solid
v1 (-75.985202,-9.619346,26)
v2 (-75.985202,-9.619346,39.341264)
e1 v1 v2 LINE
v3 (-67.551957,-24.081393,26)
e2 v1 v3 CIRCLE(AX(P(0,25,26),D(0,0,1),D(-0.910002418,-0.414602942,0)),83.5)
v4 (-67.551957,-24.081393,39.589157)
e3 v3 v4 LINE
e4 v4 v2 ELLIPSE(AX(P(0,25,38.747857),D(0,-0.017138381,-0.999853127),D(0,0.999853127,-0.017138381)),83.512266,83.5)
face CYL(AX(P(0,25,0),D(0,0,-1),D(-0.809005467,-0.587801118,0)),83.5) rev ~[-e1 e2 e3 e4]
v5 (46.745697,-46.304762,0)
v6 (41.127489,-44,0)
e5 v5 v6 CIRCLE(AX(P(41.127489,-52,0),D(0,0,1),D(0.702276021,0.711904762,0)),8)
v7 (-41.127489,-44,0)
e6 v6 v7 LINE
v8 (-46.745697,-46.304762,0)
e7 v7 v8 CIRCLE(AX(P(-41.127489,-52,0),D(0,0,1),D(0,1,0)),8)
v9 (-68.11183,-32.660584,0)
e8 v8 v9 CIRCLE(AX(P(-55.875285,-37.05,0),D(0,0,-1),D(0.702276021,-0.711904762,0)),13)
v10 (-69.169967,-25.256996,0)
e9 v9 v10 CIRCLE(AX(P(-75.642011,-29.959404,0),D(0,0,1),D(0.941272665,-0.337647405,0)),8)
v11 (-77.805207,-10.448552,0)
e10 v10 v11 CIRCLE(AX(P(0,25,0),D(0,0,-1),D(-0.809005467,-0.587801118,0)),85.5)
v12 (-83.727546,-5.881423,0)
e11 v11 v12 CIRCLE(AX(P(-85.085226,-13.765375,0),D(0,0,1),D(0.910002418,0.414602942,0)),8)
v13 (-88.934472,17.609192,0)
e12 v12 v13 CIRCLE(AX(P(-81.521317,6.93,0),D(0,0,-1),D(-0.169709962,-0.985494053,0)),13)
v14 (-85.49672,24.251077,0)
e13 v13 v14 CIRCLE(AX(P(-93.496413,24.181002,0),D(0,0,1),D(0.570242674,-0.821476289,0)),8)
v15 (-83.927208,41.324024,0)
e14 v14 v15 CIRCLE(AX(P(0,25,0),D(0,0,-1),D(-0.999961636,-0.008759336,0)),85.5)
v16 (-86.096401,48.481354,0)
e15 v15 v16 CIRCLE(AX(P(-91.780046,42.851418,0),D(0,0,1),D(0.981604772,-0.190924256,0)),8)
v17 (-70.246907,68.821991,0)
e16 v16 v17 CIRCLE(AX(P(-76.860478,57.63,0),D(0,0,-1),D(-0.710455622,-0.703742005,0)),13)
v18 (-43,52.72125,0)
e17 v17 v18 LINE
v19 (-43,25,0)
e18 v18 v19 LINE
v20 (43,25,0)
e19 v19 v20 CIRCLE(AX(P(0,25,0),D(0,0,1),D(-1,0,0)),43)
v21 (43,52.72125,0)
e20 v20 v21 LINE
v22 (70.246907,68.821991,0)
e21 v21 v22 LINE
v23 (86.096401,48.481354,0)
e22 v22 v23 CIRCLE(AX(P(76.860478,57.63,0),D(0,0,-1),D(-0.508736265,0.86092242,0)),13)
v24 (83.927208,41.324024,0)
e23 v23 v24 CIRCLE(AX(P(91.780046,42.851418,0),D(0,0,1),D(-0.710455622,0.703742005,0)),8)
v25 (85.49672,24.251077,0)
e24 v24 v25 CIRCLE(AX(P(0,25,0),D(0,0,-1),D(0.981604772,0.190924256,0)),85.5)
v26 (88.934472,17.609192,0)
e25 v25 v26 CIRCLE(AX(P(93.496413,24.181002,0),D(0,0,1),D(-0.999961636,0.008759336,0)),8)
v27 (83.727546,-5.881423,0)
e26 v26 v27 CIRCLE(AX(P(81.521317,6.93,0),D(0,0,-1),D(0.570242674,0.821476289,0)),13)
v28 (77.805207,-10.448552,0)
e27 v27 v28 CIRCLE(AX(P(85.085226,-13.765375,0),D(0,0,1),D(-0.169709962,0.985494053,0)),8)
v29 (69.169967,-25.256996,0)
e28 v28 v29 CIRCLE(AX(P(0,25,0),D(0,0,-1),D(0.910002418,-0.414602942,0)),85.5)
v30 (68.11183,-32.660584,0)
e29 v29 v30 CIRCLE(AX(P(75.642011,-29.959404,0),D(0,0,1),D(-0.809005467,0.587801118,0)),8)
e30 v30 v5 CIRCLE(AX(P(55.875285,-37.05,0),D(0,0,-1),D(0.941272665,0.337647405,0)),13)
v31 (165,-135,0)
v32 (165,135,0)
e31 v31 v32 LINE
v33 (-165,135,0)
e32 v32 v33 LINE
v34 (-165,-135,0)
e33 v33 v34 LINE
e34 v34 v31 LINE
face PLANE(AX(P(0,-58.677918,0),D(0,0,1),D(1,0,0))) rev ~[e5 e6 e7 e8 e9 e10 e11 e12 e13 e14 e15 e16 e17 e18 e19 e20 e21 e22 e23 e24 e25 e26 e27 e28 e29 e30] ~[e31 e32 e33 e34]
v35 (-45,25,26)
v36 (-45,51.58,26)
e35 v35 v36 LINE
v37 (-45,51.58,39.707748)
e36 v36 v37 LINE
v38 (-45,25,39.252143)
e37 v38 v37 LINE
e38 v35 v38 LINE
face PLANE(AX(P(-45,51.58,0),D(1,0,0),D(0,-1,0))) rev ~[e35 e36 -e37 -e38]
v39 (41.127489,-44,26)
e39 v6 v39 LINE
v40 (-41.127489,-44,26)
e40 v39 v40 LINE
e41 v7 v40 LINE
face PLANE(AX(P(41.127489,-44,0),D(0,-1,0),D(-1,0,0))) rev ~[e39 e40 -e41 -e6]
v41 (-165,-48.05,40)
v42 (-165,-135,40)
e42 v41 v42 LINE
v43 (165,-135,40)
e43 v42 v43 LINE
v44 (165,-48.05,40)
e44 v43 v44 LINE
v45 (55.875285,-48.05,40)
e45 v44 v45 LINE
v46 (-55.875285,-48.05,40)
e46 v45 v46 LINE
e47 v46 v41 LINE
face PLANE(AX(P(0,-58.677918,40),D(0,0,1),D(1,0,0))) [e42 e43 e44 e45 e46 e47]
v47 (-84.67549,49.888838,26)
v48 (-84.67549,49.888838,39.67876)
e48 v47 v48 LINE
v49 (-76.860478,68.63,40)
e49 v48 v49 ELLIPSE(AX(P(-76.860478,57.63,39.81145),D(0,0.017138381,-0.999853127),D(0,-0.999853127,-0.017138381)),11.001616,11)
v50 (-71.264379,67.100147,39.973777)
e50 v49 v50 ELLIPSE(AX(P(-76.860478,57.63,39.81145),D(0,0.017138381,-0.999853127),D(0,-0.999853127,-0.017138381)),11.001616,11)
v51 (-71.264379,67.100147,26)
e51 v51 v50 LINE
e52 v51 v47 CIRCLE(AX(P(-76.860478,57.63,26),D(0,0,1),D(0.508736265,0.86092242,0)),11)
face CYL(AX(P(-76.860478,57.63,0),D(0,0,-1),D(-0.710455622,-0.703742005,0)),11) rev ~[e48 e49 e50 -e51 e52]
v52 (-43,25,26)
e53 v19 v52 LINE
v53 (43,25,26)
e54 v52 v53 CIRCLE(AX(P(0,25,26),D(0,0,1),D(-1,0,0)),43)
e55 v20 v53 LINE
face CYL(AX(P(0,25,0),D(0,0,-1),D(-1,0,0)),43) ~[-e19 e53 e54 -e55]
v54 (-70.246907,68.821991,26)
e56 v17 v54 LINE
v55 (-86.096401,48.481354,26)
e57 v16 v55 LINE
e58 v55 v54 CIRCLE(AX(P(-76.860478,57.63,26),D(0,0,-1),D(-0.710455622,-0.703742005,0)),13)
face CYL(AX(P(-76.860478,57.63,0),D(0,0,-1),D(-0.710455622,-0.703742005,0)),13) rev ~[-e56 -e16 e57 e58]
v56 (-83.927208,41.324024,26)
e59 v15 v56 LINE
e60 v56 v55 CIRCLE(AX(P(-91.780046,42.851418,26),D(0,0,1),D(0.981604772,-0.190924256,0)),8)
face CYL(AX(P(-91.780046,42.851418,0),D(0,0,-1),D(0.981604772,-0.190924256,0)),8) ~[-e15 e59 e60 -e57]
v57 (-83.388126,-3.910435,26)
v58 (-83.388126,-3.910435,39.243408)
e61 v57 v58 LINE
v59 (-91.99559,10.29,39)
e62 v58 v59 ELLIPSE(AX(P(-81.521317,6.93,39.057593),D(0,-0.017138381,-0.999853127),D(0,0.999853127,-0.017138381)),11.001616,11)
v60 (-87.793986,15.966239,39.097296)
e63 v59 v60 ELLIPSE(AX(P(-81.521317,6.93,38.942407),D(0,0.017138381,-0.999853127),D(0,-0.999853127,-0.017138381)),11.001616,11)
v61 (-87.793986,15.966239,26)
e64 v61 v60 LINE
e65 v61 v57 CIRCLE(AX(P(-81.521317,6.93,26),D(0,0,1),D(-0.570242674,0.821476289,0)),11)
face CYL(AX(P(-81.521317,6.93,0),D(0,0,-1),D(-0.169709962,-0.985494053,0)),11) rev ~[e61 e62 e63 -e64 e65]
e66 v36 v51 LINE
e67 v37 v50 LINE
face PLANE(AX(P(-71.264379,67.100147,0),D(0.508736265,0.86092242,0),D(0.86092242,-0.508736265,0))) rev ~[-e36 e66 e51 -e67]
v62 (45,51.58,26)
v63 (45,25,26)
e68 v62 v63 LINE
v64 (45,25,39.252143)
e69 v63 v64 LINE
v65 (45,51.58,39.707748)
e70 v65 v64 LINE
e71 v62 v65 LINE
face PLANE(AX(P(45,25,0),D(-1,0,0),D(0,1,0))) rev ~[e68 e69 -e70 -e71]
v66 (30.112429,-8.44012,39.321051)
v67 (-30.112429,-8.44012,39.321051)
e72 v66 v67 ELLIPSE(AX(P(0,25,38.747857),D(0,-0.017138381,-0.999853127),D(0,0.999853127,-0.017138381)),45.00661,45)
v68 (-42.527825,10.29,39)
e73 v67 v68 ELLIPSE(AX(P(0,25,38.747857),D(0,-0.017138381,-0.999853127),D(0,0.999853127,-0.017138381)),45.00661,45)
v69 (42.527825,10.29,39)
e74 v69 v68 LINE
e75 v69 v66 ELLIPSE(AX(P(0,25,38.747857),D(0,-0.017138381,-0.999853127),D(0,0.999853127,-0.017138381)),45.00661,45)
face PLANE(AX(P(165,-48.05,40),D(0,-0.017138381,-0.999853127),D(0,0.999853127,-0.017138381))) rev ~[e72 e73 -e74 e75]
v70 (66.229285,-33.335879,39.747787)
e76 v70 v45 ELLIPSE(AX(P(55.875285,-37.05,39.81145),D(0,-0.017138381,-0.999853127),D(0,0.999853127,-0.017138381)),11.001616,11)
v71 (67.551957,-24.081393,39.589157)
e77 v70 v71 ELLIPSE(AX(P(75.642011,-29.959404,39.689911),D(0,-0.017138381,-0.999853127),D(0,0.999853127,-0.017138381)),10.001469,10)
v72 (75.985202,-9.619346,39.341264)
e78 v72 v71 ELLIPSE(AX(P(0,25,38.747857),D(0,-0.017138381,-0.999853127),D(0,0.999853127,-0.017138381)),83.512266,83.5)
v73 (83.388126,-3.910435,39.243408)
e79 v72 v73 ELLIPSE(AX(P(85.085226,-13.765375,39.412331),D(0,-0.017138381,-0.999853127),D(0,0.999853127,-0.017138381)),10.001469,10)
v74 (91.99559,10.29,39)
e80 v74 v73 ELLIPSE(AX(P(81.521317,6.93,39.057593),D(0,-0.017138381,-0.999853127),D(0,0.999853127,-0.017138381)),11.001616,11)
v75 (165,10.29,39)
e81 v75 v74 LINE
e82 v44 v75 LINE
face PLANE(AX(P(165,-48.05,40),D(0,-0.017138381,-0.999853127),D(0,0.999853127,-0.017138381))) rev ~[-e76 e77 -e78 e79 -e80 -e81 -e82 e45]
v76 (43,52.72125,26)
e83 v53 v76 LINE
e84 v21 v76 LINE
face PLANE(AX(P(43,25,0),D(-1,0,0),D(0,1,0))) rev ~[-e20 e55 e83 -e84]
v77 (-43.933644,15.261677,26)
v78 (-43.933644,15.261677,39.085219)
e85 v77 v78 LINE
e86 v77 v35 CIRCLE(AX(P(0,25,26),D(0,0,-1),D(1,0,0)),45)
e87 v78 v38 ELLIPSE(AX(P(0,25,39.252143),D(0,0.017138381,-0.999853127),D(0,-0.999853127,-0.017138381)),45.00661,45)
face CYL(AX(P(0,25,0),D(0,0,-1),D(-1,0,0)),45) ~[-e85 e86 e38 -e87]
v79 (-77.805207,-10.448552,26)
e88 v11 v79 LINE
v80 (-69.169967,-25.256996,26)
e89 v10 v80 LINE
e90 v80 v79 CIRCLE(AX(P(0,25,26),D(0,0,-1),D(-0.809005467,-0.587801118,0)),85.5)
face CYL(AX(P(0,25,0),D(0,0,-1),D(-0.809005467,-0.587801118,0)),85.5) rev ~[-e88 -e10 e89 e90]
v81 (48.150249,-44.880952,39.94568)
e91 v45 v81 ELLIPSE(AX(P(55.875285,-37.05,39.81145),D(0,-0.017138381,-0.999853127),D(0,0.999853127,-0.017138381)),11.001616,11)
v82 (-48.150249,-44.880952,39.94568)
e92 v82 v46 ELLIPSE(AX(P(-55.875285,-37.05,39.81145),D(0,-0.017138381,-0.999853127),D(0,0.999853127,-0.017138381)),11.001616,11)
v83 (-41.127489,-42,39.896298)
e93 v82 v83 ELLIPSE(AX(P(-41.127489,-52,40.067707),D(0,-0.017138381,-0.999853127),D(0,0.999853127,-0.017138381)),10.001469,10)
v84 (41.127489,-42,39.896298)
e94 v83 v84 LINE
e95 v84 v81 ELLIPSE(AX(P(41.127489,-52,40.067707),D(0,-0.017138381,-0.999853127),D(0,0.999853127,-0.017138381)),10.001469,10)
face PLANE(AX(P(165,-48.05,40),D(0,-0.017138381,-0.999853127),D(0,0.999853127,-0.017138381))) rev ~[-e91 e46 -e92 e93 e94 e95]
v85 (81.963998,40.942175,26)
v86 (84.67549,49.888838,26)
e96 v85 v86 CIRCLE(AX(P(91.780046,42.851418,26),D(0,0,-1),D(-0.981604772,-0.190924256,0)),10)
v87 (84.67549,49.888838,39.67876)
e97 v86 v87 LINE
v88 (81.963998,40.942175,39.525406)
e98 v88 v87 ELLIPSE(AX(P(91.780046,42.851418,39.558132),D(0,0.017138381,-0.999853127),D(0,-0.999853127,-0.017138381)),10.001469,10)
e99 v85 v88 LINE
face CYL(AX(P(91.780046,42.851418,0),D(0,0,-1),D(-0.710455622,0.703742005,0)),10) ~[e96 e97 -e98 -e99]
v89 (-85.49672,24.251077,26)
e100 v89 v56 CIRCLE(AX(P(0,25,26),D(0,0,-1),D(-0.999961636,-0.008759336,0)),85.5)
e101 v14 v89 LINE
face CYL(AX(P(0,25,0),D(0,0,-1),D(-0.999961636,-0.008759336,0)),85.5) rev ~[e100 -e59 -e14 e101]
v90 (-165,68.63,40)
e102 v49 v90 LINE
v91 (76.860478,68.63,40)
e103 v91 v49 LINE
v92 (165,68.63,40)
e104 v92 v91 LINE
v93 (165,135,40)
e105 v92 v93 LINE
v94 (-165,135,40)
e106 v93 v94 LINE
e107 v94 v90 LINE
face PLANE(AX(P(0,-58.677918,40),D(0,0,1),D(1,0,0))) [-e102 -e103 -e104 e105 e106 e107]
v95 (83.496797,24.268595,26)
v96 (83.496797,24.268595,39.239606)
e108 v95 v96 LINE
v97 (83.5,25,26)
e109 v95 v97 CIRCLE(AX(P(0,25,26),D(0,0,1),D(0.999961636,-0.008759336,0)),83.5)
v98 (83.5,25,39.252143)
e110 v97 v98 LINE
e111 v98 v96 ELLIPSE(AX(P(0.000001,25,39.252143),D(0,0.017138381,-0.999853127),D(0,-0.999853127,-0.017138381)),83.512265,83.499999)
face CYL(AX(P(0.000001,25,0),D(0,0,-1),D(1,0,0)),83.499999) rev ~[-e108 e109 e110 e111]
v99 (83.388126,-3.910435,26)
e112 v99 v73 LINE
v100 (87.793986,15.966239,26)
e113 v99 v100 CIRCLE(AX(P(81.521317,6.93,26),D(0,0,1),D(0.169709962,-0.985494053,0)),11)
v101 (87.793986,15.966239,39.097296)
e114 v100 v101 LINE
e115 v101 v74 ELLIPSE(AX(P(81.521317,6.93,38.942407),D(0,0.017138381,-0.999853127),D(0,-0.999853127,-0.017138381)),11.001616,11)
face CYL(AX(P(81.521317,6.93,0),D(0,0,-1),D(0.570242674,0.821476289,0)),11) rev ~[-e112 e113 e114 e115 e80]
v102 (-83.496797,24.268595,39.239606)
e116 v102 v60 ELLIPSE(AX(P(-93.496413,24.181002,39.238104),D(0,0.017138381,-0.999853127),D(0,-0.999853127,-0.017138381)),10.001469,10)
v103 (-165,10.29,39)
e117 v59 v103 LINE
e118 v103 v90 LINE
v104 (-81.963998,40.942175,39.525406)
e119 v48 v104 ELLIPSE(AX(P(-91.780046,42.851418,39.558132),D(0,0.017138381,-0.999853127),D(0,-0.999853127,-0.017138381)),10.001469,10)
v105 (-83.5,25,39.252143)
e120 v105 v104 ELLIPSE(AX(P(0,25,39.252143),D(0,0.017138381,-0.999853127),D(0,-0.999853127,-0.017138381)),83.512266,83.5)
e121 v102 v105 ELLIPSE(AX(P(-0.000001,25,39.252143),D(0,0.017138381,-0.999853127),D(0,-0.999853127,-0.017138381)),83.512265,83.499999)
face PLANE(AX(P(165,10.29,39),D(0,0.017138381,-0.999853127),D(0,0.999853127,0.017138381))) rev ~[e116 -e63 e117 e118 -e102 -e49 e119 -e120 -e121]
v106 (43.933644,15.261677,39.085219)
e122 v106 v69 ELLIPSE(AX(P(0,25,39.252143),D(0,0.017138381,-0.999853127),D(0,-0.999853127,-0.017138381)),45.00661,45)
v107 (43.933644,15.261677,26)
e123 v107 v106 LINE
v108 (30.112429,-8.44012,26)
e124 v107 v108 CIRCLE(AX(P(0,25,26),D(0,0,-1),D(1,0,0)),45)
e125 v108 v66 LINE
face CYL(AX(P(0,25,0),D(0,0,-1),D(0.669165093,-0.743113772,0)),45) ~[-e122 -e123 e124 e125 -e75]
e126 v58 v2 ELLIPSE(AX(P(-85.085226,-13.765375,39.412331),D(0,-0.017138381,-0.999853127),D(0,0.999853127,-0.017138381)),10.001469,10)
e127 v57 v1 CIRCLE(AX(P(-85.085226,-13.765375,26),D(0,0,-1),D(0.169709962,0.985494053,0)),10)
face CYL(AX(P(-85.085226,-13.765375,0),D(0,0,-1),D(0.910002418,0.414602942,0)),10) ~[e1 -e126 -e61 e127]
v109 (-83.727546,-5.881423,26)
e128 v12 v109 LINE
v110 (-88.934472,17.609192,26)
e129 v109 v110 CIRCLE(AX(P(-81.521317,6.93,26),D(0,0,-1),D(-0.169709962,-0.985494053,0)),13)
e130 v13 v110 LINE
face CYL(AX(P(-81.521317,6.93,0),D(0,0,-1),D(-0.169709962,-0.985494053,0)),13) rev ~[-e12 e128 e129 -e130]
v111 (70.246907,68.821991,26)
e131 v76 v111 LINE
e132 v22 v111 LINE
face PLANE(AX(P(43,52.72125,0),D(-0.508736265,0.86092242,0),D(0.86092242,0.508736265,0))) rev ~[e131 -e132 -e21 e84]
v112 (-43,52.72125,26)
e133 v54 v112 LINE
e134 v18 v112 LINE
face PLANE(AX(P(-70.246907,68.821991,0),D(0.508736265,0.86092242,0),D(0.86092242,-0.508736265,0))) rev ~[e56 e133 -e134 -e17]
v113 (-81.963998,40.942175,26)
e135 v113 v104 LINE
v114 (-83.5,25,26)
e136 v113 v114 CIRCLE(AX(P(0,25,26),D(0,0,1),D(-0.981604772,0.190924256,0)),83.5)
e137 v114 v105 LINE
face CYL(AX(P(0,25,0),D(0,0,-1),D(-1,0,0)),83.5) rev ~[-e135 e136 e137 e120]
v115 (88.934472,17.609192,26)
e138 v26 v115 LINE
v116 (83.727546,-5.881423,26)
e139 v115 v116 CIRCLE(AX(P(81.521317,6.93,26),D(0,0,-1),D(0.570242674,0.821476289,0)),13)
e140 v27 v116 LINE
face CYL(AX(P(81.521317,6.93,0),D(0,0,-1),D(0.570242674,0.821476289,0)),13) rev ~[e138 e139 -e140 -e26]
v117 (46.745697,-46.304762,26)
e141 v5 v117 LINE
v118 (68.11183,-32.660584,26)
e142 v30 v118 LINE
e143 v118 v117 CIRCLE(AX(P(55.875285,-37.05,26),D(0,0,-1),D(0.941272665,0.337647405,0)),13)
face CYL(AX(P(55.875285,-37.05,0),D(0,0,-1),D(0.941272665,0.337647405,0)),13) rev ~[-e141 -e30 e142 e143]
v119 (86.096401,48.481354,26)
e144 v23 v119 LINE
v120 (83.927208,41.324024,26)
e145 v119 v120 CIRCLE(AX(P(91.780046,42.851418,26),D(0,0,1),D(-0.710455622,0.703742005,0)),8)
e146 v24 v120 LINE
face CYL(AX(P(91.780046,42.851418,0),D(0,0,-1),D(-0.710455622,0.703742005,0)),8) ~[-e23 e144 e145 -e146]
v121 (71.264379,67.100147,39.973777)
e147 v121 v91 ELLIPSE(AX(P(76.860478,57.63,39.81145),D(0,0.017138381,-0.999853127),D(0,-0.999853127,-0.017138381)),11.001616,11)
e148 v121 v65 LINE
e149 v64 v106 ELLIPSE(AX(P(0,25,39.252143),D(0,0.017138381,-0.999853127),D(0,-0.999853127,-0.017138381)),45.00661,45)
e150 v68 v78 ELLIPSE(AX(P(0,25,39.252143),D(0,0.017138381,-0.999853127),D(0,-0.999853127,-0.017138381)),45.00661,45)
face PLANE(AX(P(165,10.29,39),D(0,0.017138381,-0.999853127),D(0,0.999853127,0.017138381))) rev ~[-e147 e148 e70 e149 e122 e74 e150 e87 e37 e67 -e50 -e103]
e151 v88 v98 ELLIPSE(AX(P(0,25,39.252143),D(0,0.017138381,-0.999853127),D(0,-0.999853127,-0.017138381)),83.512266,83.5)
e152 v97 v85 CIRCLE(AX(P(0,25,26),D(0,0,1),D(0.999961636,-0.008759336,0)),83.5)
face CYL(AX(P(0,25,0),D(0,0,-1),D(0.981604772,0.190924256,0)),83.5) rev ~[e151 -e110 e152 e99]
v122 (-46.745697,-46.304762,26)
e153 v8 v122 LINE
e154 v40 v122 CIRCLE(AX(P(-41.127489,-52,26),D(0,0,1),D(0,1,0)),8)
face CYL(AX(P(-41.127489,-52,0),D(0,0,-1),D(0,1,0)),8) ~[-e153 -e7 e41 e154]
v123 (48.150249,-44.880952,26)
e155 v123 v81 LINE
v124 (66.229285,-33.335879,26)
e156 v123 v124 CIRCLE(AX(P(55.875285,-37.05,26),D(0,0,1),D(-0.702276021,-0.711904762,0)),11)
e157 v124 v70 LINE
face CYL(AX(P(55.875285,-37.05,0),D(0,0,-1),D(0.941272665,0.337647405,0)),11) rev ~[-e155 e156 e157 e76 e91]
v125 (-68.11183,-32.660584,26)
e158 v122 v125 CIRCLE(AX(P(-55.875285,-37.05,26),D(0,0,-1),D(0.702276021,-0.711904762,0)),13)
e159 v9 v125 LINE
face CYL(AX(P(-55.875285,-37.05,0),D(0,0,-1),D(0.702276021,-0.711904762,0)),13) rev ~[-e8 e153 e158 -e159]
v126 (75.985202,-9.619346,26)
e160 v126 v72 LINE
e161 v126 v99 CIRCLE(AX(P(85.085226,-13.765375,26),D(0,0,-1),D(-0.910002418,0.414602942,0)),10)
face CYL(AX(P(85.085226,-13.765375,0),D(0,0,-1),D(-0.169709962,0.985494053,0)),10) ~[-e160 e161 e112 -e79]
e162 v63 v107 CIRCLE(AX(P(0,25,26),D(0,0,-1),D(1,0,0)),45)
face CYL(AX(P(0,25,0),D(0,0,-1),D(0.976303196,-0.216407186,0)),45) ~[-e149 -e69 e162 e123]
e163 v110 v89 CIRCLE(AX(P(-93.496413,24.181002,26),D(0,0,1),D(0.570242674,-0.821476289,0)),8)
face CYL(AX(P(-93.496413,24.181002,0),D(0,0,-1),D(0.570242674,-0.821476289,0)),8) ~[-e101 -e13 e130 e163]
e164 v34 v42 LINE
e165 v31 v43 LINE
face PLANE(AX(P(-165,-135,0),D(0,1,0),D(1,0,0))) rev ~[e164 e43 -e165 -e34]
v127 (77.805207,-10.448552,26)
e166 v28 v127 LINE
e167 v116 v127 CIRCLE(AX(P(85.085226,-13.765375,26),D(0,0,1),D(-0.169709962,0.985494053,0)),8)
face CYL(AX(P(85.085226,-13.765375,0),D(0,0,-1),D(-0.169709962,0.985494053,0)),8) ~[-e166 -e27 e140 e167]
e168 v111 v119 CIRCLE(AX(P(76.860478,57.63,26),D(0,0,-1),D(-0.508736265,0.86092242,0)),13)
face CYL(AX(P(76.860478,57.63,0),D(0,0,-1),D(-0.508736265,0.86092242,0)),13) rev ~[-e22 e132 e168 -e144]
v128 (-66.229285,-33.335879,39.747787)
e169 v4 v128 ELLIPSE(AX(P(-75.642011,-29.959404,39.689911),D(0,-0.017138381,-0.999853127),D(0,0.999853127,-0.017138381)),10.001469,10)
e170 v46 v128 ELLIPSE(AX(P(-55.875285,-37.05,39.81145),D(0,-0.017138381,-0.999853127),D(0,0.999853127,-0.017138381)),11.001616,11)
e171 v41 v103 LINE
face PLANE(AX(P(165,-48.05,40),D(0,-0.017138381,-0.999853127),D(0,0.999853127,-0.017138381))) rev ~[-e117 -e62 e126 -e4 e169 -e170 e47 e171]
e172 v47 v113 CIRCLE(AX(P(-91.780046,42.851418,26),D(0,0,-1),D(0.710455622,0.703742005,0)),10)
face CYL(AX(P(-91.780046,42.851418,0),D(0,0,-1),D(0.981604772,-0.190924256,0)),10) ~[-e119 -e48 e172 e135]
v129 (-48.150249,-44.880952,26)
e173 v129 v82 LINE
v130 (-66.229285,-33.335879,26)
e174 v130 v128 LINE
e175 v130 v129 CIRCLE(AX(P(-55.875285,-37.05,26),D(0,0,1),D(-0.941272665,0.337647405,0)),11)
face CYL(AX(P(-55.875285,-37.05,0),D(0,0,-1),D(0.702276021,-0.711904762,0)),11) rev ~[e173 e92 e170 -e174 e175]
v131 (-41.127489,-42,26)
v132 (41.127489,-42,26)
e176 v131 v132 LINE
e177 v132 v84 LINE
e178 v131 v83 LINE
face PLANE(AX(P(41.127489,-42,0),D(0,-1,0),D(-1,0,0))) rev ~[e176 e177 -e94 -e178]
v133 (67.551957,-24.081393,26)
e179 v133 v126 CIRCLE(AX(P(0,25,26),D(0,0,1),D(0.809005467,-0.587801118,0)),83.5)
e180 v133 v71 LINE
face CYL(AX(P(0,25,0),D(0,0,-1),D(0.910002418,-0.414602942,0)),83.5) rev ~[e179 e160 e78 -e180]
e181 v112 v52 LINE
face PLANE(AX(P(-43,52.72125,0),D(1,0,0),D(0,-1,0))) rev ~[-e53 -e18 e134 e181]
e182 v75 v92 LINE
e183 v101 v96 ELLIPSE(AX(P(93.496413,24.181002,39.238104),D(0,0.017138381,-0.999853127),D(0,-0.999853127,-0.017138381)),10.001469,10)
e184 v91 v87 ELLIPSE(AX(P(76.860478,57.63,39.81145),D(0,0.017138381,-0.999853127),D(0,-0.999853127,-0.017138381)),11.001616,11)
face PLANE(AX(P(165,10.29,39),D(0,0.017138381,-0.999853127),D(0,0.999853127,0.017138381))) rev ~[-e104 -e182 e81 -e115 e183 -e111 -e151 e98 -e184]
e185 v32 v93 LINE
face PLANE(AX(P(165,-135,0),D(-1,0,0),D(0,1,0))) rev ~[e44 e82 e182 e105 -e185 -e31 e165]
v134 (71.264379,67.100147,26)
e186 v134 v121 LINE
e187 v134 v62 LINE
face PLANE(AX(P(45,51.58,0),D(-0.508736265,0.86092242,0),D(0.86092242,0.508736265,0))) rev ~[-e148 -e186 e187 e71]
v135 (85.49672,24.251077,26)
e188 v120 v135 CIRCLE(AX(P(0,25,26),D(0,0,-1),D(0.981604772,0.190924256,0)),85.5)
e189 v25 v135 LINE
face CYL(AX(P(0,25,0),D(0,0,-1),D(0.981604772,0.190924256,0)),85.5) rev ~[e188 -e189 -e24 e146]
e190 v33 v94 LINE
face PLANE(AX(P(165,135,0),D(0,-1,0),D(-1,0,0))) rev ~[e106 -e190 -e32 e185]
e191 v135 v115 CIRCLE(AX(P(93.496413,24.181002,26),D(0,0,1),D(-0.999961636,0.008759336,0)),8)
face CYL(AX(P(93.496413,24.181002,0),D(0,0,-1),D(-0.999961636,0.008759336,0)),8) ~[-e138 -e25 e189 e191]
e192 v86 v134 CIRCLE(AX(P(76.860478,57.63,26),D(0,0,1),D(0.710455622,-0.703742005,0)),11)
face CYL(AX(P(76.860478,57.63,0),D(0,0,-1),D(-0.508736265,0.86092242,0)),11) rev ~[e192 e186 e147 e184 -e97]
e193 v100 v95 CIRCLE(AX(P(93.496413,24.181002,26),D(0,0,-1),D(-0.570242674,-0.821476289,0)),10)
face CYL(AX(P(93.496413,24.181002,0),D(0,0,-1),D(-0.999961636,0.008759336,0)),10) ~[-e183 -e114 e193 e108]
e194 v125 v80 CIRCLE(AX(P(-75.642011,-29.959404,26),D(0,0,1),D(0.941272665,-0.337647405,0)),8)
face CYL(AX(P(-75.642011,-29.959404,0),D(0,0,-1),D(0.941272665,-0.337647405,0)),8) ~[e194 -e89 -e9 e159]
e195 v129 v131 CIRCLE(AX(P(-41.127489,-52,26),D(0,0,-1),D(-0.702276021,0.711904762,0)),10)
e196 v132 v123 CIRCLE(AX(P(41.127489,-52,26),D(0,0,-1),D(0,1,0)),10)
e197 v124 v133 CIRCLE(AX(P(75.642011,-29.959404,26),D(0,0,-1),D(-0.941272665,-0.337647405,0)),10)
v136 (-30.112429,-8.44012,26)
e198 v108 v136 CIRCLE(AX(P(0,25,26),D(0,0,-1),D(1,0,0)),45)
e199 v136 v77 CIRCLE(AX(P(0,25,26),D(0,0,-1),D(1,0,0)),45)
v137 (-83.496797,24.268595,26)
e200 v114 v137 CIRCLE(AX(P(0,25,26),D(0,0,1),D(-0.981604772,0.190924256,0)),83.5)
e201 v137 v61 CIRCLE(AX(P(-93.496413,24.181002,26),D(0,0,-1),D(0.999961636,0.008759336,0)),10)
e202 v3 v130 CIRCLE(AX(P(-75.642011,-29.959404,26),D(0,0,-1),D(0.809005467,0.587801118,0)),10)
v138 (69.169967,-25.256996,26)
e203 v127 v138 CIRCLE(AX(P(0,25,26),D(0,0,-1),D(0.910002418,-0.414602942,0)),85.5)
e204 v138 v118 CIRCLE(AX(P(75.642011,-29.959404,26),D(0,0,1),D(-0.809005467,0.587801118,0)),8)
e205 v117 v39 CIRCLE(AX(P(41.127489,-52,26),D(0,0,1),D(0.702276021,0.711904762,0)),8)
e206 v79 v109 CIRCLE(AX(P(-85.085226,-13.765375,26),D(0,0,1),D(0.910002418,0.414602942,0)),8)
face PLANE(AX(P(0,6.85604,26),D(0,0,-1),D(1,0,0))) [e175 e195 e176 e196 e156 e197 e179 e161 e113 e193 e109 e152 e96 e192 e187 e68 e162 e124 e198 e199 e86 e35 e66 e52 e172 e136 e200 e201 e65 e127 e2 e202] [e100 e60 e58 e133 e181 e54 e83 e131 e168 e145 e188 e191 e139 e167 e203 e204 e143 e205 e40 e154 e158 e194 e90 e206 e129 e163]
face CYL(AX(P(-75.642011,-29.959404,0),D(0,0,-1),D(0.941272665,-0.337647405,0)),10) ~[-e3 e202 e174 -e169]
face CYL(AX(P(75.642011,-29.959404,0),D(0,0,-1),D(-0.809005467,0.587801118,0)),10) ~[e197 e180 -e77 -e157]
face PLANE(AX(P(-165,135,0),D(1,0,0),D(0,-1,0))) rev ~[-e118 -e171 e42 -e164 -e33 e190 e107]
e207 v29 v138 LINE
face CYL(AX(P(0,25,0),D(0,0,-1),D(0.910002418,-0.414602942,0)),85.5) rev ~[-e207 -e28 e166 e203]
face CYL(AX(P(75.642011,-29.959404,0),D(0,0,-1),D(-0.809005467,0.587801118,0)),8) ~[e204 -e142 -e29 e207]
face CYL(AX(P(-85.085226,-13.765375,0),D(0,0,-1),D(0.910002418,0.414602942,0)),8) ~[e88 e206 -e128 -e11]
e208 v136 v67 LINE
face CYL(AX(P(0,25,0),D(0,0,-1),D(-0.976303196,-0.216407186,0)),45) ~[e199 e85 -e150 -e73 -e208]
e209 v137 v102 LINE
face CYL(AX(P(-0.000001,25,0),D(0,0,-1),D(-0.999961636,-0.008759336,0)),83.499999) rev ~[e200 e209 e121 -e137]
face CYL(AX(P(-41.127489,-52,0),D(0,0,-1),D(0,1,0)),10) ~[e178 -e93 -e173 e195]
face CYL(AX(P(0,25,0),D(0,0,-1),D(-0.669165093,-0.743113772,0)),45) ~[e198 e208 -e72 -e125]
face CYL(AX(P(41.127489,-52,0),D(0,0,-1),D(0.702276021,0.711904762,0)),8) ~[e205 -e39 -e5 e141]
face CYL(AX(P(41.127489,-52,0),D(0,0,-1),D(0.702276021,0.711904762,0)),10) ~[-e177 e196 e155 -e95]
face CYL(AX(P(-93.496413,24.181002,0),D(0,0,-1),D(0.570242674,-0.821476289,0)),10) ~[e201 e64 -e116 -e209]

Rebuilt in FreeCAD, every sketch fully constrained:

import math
import FreeCAD as App
import Part
import Sketcher
from FreeCAD import Vector
Q = App.Units.Quantity

doc = App.newDocument("Part")
body = doc.addObject("PartDesign::Body", "Body")

# Sketch on XY plane
sketch1 = body.newObject("Sketcher::SketchObject", "Sketch")
sketch1.AttachmentSupport = (doc.getObject("XY_Plane"), [""])
sketch1.MapMode = "FlatFace"
sketch1.addGeometry([
    Part.LineSegment(Vector(165, -135, 0), Vector(165, 135, 0)),  # 0
    Part.LineSegment(Vector(165, 135, 0), Vector(-165, 135, 0)),  # 1
    Part.LineSegment(Vector(-165, 135, 0), Vector(-165, -135, 0)),  # 2
    Part.LineSegment(Vector(-165, -135, 0), Vector(165, -135, 0)),  # 3
    Part.ArcOfCircle(Part.Circle(Vector(0, 25, 0), Vector(0, 0, 1), 83.5), math.radians(-0.5), math.radians(0)),  # 4
    Part.ArcOfCircle(Part.Circle(Vector(93.5, 24.2, 0), Vector(0, 0, 1), 10), math.radians(179), math.radians(235)),  # 5
    Part.ArcOfCircle(Part.Circle(Vector(81.5, 6.9, 0), Vector(0, 0, 1), 11), math.radians(-80), math.radians(55)),  # 6
    Part.ArcOfCircle(Part.Circle(Vector(85.1, -13.8, 0), Vector(0, 0, 1), 10), math.radians(100), math.radians(156)),  # 7
    Part.ArcOfCircle(Part.Circle(Vector(0, 25, 0), Vector(0, 0, 1), 83.5), math.radians(-36), math.radians(-24.49)),  # 8
    Part.ArcOfCircle(Part.Circle(Vector(75.6, -30, 0), Vector(0, 0, 1), 10), math.radians(144), math.radians(200)),  # 9
    Part.ArcOfCircle(Part.Circle(Vector(55.9, -37, 0), Vector(0, 0, 1), 11), math.radians(-135), math.radians(20)),  # 10
    Part.ArcOfCircle(Part.Circle(Vector(41.1, -52, 0), Vector(0, 0, 1), 10), math.radians(45), math.radians(90)),  # 11
    Part.LineSegment(Vector(41.1, -42, 0), Vector(-41.1, -42, 0)),  # 12
    Part.ArcOfCircle(Part.Circle(Vector(-41.1, -52, 0), Vector(0, 0, 1), 10), math.radians(90), math.radians(135)),  # 13
    Part.ArcOfCircle(Part.Circle(Vector(-55.9, -37, 0), Vector(0, 0, 1), 11), math.radians(160), math.radians(315)),  # 14
    Part.ArcOfCircle(Part.Circle(Vector(-75.6, -30, 0), Vector(0, 0, 1), 10), math.radians(-20), math.radians(36)),  # 15
    Part.ArcOfCircle(Part.Circle(Vector(0, 25, 0), Vector(0, 0, 1), 83.5), math.radians(-155.51), math.radians(-144)),  # 16
    Part.ArcOfCircle(Part.Circle(Vector(-85.1, -13.8, 0), Vector(0, 0, 1), 10), math.radians(24), math.radians(80)),  # 17
    Part.ArcOfCircle(Part.Circle(Vector(-81.5, 6.9, 0), Vector(0, 0, 1), 11), math.radians(125), math.radians(260)),  # 18
    Part.ArcOfCircle(Part.Circle(Vector(-93.5, 24.2, 0), Vector(0, 0, 1), 10), math.radians(-55), math.radians(1)),  # 19
    Part.ArcOfCircle(Part.Circle(Vector(0, 25, 0), Vector(0, 0, 1), 83.5), math.radians(180), math.radians(180.5)),  # 20
    Part.ArcOfCircle(Part.Circle(Vector(0, 25, 0), Vector(0, 0, 1), 83.5), math.radians(168.99), math.radians(180)),  # 21
    Part.ArcOfCircle(Part.Circle(Vector(-91.8, 42.9, 0), Vector(0, 0, 1), 10), math.radians(-11), math.radians(45)),  # 22
    Part.ArcOfCircle(Part.Circle(Vector(-76.9, 57.6, 0), Vector(0, 0, 1), 11), math.radians(59), math.radians(225)),  # 23
    Part.LineSegment(Vector(-71.3, 67.1, 0), Vector(-45, 51.6, 0)),  # 24
    Part.LineSegment(Vector(-45, 51.6, 0), Vector(-45, 25, 0)),  # 25
    Part.ArcOfCircle(Part.Circle(Vector(0, 25, 0), Vector(0, 0, 1), 45), math.radians(-180), math.radians(-167.5)),  # 26
    Part.ArcOfCircle(Part.Circle(Vector(0, 25, 0), Vector(0, 0, 1), 45), math.radians(-168), math.radians(-132)),  # 27
    Part.ArcOfCircle(Part.Circle(Vector(0, 25, 0), Vector(0, 0, 1), 45), math.radians(-132), math.radians(-48)),  # 28
    Part.ArcOfCircle(Part.Circle(Vector(0, 25, 0), Vector(0, 0, 1), 45), math.radians(-48), math.radians(-12)),  # 29
    Part.ArcOfCircle(Part.Circle(Vector(0, 25, 0), Vector(0, 0, 1), 45), math.radians(-12.5), math.radians(0)),  # 30
    Part.LineSegment(Vector(45, 25, 0), Vector(45, 51.6, 0)),  # 31
    Part.LineSegment(Vector(45, 51.6, 0), Vector(71.3, 67.1, 0)),  # 32
    Part.ArcOfCircle(Part.Circle(Vector(76.9, 57.6, 0), Vector(0, 0, 1), 11), math.radians(-45), math.radians(121)),  # 33
    Part.ArcOfCircle(Part.Circle(Vector(91.8, 42.9, 0), Vector(0, 0, 1), 10), math.radians(135), math.radians(191)),  # 34
    Part.ArcOfCircle(Part.Circle(Vector(0, 25, 0), Vector(0, 0, 1), 83.5), math.radians(0), math.radians(11.01)),  # 35
], False)
sketch1.addConstraint([
    Sketcher.Constraint("Coincident", 0, 2, 1, 1),
    Sketcher.Constraint("Coincident", 1, 2, 2, 1),
    Sketcher.Constraint("Coincident", 2, 2, 3, 1),
    Sketcher.Constraint("Coincident", 3, 2, 0, 1),
    Sketcher.Constraint("Tangent", 4, 1, 5, 1),
    Sketcher.Constraint("Tangent", 5, 2, 6, 2),
    Sketcher.Constraint("Tangent", 6, 1, 7, 1),
    Sketcher.Constraint("Tangent", 7, 2, 8, 2),
    Sketcher.Constraint("Tangent", 8, 1, 9, 1),
    Sketcher.Constraint("Tangent", 9, 2, 10, 2),
    Sketcher.Constraint("Tangent", 10, 1, 11, 1),
    Sketcher.Constraint("Tangent", 11, 2, 12, 1),
    Sketcher.Constraint("Tangent", 12, 2, 13, 1),
    Sketcher.Constraint("Tangent", 13, 2, 14, 2),
    Sketcher.Constraint("Tangent", 14, 1, 15, 1),
    Sketcher.Constraint("Tangent", 15, 2, 16, 2),
    Sketcher.Constraint("Tangent", 16, 1, 17, 1),
    Sketcher.Constraint("Tangent", 17, 2, 18, 2),
    Sketcher.Constraint("Tangent", 18, 1, 19, 1),
    Sketcher.Constraint("Tangent", 19, 2, 20, 2),
    Sketcher.Constraint("Tangent", 20, 1, 21, 2),
    Sketcher.Constraint("Tangent", 21, 1, 22, 1),
    Sketcher.Constraint("Tangent", 22, 2, 23, 2),
    Sketcher.Constraint("Tangent", 23, 1, 24, 1),
    Sketcher.Constraint("Coincident", 24, 2, 25, 1),
    Sketcher.Constraint("Tangent", 25, 2, 26, 1),
    Sketcher.Constraint("Tangent", 26, 2, 27, 1),
    Sketcher.Constraint("Tangent", 27, 2, 28, 1),
    Sketcher.Constraint("Tangent", 28, 2, 29, 1),
    Sketcher.Constraint("Tangent", 29, 2, 30, 1),
    Sketcher.Constraint("Tangent", 30, 2, 31, 1),
    Sketcher.Constraint("Coincident", 31, 2, 32, 1),
    Sketcher.Constraint("Tangent", 32, 2, 33, 2),
    Sketcher.Constraint("Tangent", 33, 1, 34, 1),
    Sketcher.Constraint("Tangent", 34, 2, 35, 2),
    Sketcher.Constraint("Tangent", 35, 1, 4, 2),
    Sketcher.Constraint("Vertical", 0),
    Sketcher.Constraint("Horizontal", 1),
    Sketcher.Constraint("Vertical", 2),
    Sketcher.Constraint("Horizontal", 3),
    Sketcher.Constraint("Horizontal", 12),
    Sketcher.Constraint("Vertical", 25),
    Sketcher.Constraint("Vertical", 31),
    Sketcher.Constraint("Coincident", 8, 3, 4, 3),
    Sketcher.Constraint("Coincident", 16, 3, 4, 3),
    Sketcher.Constraint("Coincident", 20, 3, 4, 3),
    Sketcher.Constraint("Coincident", 26, 3, 4, 3),
    Sketcher.Constraint("Coincident", 28, 3, 4, 3),
    Sketcher.Constraint("Coincident", 30, 3, 4, 3),
    Sketcher.Constraint("Equal", 5, 7),
    Sketcher.Constraint("Equal", 4, 8),
    Sketcher.Constraint("Equal", 7, 9),
    Sketcher.Constraint("Equal", 6, 10),
    Sketcher.Constraint("Equal", 9, 11),
    Sketcher.Constraint("Equal", 11, 13),
    Sketcher.Constraint("Equal", 10, 14),
    Sketcher.Constraint("Equal", 13, 15),
    Sketcher.Constraint("Equal", 8, 16),
    Sketcher.Constraint("Equal", 15, 17),
    Sketcher.Constraint("Equal", 14, 18),
    Sketcher.Constraint("Equal", 17, 19),
    Sketcher.Constraint("Equal", 16, 20),
    Sketcher.Constraint("Equal", 20, 21),
    Sketcher.Constraint("Equal", 19, 22),
    Sketcher.Constraint("Equal", 18, 23),
    Sketcher.Constraint("Equal", 23, 33),
    Sketcher.Constraint("Equal", 22, 34),
    Sketcher.Constraint("Equal", 21, 35),
    Sketcher.Constraint("Symmetric", 0, 2, 2, 2, -1, 1),
    Sketcher.Constraint("Symmetric", 10, 3, 14, 3, -2),
    Sketcher.Constraint("Symmetric", 7, 3, 17, 3, -2),
    Sketcher.Constraint("Symmetric", 23, 3, 33, 3, -2),
    Sketcher.Constraint("Horizontal", 6, 3, 18, 3),
    Sketcher.Constraint("Horizontal", 35, 3, 20, 1),
    Sketcher.Constraint("Horizontal", 27, 2, 28, 2),
    Sketcher.Constraint("Horizontal", 26, 2, 29, 2),
    Sketcher.Constraint("Horizontal", 24, 2, 31, 2),
    Sketcher.Constraint("Horizontal", 30, 2, 35, 1),
    Sketcher.Constraint("Radius", 5, Q("10 mm")),
    Sketcher.Constraint("Radius", 6, Q("11 mm")),
    Sketcher.Constraint("Radius", 26, Q("45 mm")),
    Sketcher.Constraint("Radius", 4, Q("83.499999 mm")),
    Sketcher.Constraint("DistanceX", 1, 2, 1, 1, Q("330 mm")),
    Sketcher.Constraint("DistanceY", 0, 1, 0, 2, Q("270 mm")),
    Sketcher.Constraint("DistanceY", -1, 1, 4, 3, Q("25 mm")),
    Sketcher.Constraint("DistanceY", 11, 3, -1, 1, Q("52 mm")),
    Sketcher.Constraint("DistanceY", 25, 2, 25, 1, Q("26.58 mm")),
    Sketcher.Constraint("DistanceY", -1, 1, 6, 3, Q("6.93 mm")),
    Sketcher.Constraint("DistanceY", 10, 3, -1, 1, Q("37.05 mm")),
    Sketcher.Constraint("DistanceY", -1, 1, 23, 3, Q("57.63 mm")),
    Sketcher.Constraint("DistanceX", 21, 1, -1, 1, Q("81.963998 mm")),
    Sketcher.Constraint("DistanceX", -1, 1, 7, 2, Q("75.985202 mm")),
    Sketcher.Constraint("DistanceX", 12, 2, 12, 1, Q("82.254978 mm")),
    Sketcher.Constraint("DistanceX", 27, 2, -1, 1, Q("30.112429 mm")),
    Sketcher.Constraint("DistanceX", 26, 2, -1, 1, Q("43.933644 mm")),
])
pad1 = body.newObject("PartDesign::Pad", "Pad")
pad1.Profile = sketch1
pad1.Length = 40

# Sketch on XY plane
sketch2 = body.newObject("Sketcher::SketchObject", "Sketch001")
sketch2.AttachmentSupport = (doc.getObject("XY_Plane"), [""])
sketch2.MapMode = "FlatFace"
sketch2.addGeometry([
    Part.LineSegment(Vector(41, -44, 0), Vector(-41, -44, 0)),  # 0
    Part.ArcOfCircle(Part.Circle(Vector(-41, -52, 0), Vector(0, 0, 1), 8), math.radians(90), math.radians(135)),  # 1
    Part.ArcOfCircle(Part.Circle(Vector(-56, -37, 0), Vector(0, 0, 1), 13), math.radians(160), math.radians(315)),  # 2
    Part.ArcOfCircle(Part.Circle(Vector(-76, -30, 0), Vector(0, 0, 1), 8), math.radians(-20), math.radians(36)),  # 3
    Part.ArcOfCircle(Part.Circle(Vector(0, 25, 0), Vector(0, 0, 1), 86), math.radians(-155.51), math.radians(-144)),  # 4
    Part.ArcOfCircle(Part.Circle(Vector(-85, -14, 0), Vector(0, 0, 1), 8), math.radians(24), math.radians(80)),  # 5
    Part.ArcOfCircle(Part.Circle(Vector(-82, 7, 0), Vector(0, 0, 1), 13), math.radians(125), math.radians(260)),  # 6
    Part.ArcOfCircle(Part.Circle(Vector(-93, 24, 0), Vector(0, 0, 1), 8), math.radians(-55), math.radians(1)),  # 7
    Part.ArcOfCircle(Part.Circle(Vector(0, 25, 0), Vector(0, 0, 1), 85), math.radians(168.99), math.radians(180.5)),  # 8
    Part.ArcOfCircle(Part.Circle(Vector(-92, 43, 0), Vector(0, 0, 1), 8), math.radians(-11), math.radians(45)),  # 9
    Part.ArcOfCircle(Part.Circle(Vector(-77, 58, 0), Vector(0, 0, 1), 13), math.radians(59), math.radians(225)),  # 10
    Part.LineSegment(Vector(-70, 69, 0), Vector(-43, 53, 0)),  # 11
    Part.LineSegment(Vector(-43, 53, 0), Vector(-43, 25, 0)),  # 12
    Part.ArcOfCircle(Part.Circle(Vector(0, 25, 0), Vector(0, 0, 1), 43), math.radians(180), math.radians(360)),  # 13
    Part.LineSegment(Vector(43, 25, 0), Vector(43, 53, 0)),  # 14
    Part.LineSegment(Vector(43, 53, 0), Vector(70, 69, 0)),  # 15
    Part.ArcOfCircle(Part.Circle(Vector(77, 58, 0), Vector(0, 0, 1), 13), math.radians(-45), math.radians(121)),  # 16
    Part.ArcOfCircle(Part.Circle(Vector(92, 43, 0), Vector(0, 0, 1), 8), math.radians(135), math.radians(191)),  # 17
    Part.ArcOfCircle(Part.Circle(Vector(0, 25, 0), Vector(0, 0, 1), 85), math.radians(-0.5), math.radians(11.01)),  # 18
    Part.ArcOfCircle(Part.Circle(Vector(93, 24, 0), Vector(0, 0, 1), 8), math.radians(179), math.radians(235)),  # 19
    Part.ArcOfCircle(Part.Circle(Vector(82, 7, 0), Vector(0, 0, 1), 13), math.radians(-80), math.radians(55)),  # 20
    Part.ArcOfCircle(Part.Circle(Vector(85, -14, 0), Vector(0, 0, 1), 8), math.radians(100), math.radians(156)),  # 21
    Part.ArcOfCircle(Part.Circle(Vector(0, 25, 0), Vector(0, 0, 1), 86), math.radians(-36), math.radians(-24.49)),  # 22
    Part.ArcOfCircle(Part.Circle(Vector(76, -30, 0), Vector(0, 0, 1), 8), math.radians(144), math.radians(200)),  # 23
    Part.ArcOfCircle(Part.Circle(Vector(56, -37, 0), Vector(0, 0, 1), 13), math.radians(-135), math.radians(20)),  # 24
    Part.ArcOfCircle(Part.Circle(Vector(41, -52, 0), Vector(0, 0, 1), 8), math.radians(45), math.radians(90)),  # 25
    Part.LineSegment(Vector(-45, 25, 0), Vector(-45, 52, 0)),  # 26
    Part.LineSegment(Vector(-45, 52, 0), Vector(-71, 67, 0)),  # 27
    Part.ArcOfCircle(Part.Circle(Vector(-77, 58, 0), Vector(0, 0, 1), 11), math.radians(59), math.radians(225)),  # 28
    Part.ArcOfCircle(Part.Circle(Vector(-92, 43, 0), Vector(0, 0, 1), 10), math.radians(-11), math.radians(45)),  # 29
    Part.ArcOfCircle(Part.Circle(Vector(0, 25, 0), Vector(0, 0, 1), 84), math.radians(168.99), math.radians(180.5)),  # 30
    Part.ArcOfCircle(Part.Circle(Vector(-93, 24, 0), Vector(0, 0, 1), 10), math.radians(-55), math.radians(1)),  # 31
    Part.ArcOfCircle(Part.Circle(Vector(-82, 7, 0), Vector(0, 0, 1), 11), math.radians(125), math.radians(260)),  # 32
    Part.ArcOfCircle(Part.Circle(Vector(-85, -14, 0), Vector(0, 0, 1), 10), math.radians(24), math.radians(80)),  # 33
    Part.ArcOfCircle(Part.Circle(Vector(0, 25, 0), Vector(0, 0, 1), 84), math.radians(-155.51), math.radians(-144)),  # 34
    Part.ArcOfCircle(Part.Circle(Vector(-76, -30, 0), Vector(0, 0, 1), 10), math.radians(-20), math.radians(36)),  # 35
    Part.ArcOfCircle(Part.Circle(Vector(-56, -37, 0), Vector(0, 0, 1), 11), math.radians(160), math.radians(315)),  # 36
    Part.ArcOfCircle(Part.Circle(Vector(-41, -52, 0), Vector(0, 0, 1), 10), math.radians(90), math.radians(135)),  # 37
    Part.LineSegment(Vector(-41, -42, 0), Vector(41, -42, 0)),  # 38
    Part.ArcOfCircle(Part.Circle(Vector(41, -52, 0), Vector(0, 0, 1), 10), math.radians(45), math.radians(90)),  # 39
    Part.ArcOfCircle(Part.Circle(Vector(56, -37, 0), Vector(0, 0, 1), 11), math.radians(-135), math.radians(20)),  # 40
    Part.ArcOfCircle(Part.Circle(Vector(76, -30, 0), Vector(0, 0, 1), 10), math.radians(144), math.radians(200)),  # 41
    Part.ArcOfCircle(Part.Circle(Vector(0, 25, 0), Vector(0, 0, 1), 84), math.radians(-36), math.radians(-24.49)),  # 42
    Part.ArcOfCircle(Part.Circle(Vector(85, -14, 0), Vector(0, 0, 1), 10), math.radians(100), math.radians(156)),  # 43
    Part.ArcOfCircle(Part.Circle(Vector(82, 7, 0), Vector(0, 0, 1), 11), math.radians(-80), math.radians(55)),  # 44
    Part.ArcOfCircle(Part.Circle(Vector(93, 24, 0), Vector(0, 0, 1), 10), math.radians(179), math.radians(235)),  # 45
    Part.ArcOfCircle(Part.Circle(Vector(0, 25, 0), Vector(0, 0, 1), 84), math.radians(-0.5), math.radians(11.01)),  # 46
    Part.ArcOfCircle(Part.Circle(Vector(92, 43, 0), Vector(0, 0, 1), 10), math.radians(135), math.radians(191)),  # 47
    Part.ArcOfCircle(Part.Circle(Vector(77, 58, 0), Vector(0, 0, 1), 11), math.radians(-45), math.radians(121)),  # 48
    Part.LineSegment(Vector(71, 67, 0), Vector(45, 52, 0)),  # 49
    Part.LineSegment(Vector(45, 52, 0), Vector(45, 25, 0)),  # 50
    Part.ArcOfCircle(Part.Circle(Vector(0, 25, 0), Vector(0, 0, 1), 45), math.radians(180), math.radians(360)),  # 51
], False)
sketch2.addConstraint([
    Sketcher.Constraint("Tangent", 0, 2, 1, 1),
    Sketcher.Constraint("Tangent", 1, 2, 2, 2),
    Sketcher.Constraint("Tangent", 2, 1, 3, 1),
    Sketcher.Constraint("Tangent", 3, 2, 4, 2),
    Sketcher.Constraint("Tangent", 4, 1, 5, 1),
    Sketcher.Constraint("Tangent", 5, 2, 6, 2),
    Sketcher.Constraint("Tangent", 6, 1, 7, 1),
    Sketcher.Constraint("Tangent", 7, 2, 8, 2),
    Sketcher.Constraint("Tangent", 8, 1, 9, 1),
    Sketcher.Constraint("Tangent", 9, 2, 10, 2),
    Sketcher.Constraint("Tangent", 10, 1, 11, 1),
    Sketcher.Constraint("Coincident", 11, 2, 12, 1),
    Sketcher.Constraint("Tangent", 12, 2, 13, 1),
    Sketcher.Constraint("Tangent", 13, 2, 14, 1),
    Sketcher.Constraint("Coincident", 14, 2, 15, 1),
    Sketcher.Constraint("Tangent", 15, 2, 16, 2),
    Sketcher.Constraint("Tangent", 16, 1, 17, 1),
    Sketcher.Constraint("Tangent", 17, 2, 18, 2),
    Sketcher.Constraint("Tangent", 18, 1, 19, 1),
    Sketcher.Constraint("Tangent", 19, 2, 20, 2),
    Sketcher.Constraint("Tangent", 20, 1, 21, 1),
    Sketcher.Constraint("Tangent", 21, 2, 22, 2),
    Sketcher.Constraint("Tangent", 22, 1, 23, 1),
    Sketcher.Constraint("Tangent", 23, 2, 24, 2),
    Sketcher.Constraint("Tangent", 24, 1, 25, 1),
    Sketcher.Constraint("Tangent", 25, 2, 0, 1),
    Sketcher.Constraint("Coincident", 26, 2, 27, 1),
    Sketcher.Constraint("Tangent", 27, 2, 28, 1),
    Sketcher.Constraint("Tangent", 28, 2, 29, 2),
    Sketcher.Constraint("Tangent", 29, 1, 30, 1),
    Sketcher.Constraint("Tangent", 30, 2, 31, 2),
    Sketcher.Constraint("Tangent", 31, 1, 32, 1),
    Sketcher.Constraint("Tangent", 32, 2, 33, 2),
    Sketcher.Constraint("Tangent", 33, 1, 34, 1),
    Sketcher.Constraint("Tangent", 34, 2, 35, 2),
    Sketcher.Constraint("Tangent", 35, 1, 36, 1),
    Sketcher.Constraint("Tangent", 36, 2, 37, 2),
    Sketcher.Constraint("Tangent", 37, 1, 38, 1),
    Sketcher.Constraint("Tangent", 38, 2, 39, 2),
    Sketcher.Constraint("Tangent", 39, 1, 40, 1),
    Sketcher.Constraint("Tangent", 40, 2, 41, 2),
    Sketcher.Constraint("Tangent", 41, 1, 42, 1),
    Sketcher.Constraint("Tangent", 42, 2, 43, 2),
    Sketcher.Constraint("Tangent", 43, 1, 44, 1),
    Sketcher.Constraint("Tangent", 44, 2, 45, 2),
    Sketcher.Constraint("Tangent", 45, 1, 46, 1),
    Sketcher.Constraint("Tangent", 46, 2, 47, 2),
    Sketcher.Constraint("Tangent", 47, 1, 48, 1),
    Sketcher.Constraint("Tangent", 48, 2, 49, 1),
    Sketcher.Constraint("Coincident", 49, 2, 50, 1),
    Sketcher.Constraint("Tangent", 50, 2, 51, 2),
    Sketcher.Constraint("Tangent", 51, 1, 26, 1),
    Sketcher.Constraint("Horizontal", 0),
    Sketcher.Constraint("Vertical", 12),
    Sketcher.Constraint("Vertical", 14),
    Sketcher.Constraint("Vertical", 26),
    Sketcher.Constraint("Horizontal", 38),
    Sketcher.Constraint("Vertical", 50),
    Sketcher.Constraint("Coincident", 8, 3, 4, 3),
    Sketcher.Constraint("Coincident", 13, 3, 4, 3),
    Sketcher.Constraint("Coincident", 18, 3, 4, 3),
    Sketcher.Constraint("Coincident", 22, 3, 4, 3),
    Sketcher.Constraint("Coincident", 28, 3, 10, 3),
    Sketcher.Constraint("Coincident", 29, 3, 9, 3),
    Sketcher.Constraint("Coincident", 30, 3, 4, 3),
    Sketcher.Constraint("Coincident", 31, 3, 7, 3),
    Sketcher.Constraint("Coincident", 32, 3, 6, 3),
    Sketcher.Constraint("Coincident", 33, 3, 5, 3),
    Sketcher.Constraint("Coincident", 34, 3, 4, 3),
    Sketcher.Constraint("Coincident", 35, 3, 3, 3),
    Sketcher.Constraint("Coincident", 36, 3, 2, 3),
    Sketcher.Constraint("Coincident", 37, 3, 1, 3),
    Sketcher.Constraint("Coincident", 39, 3, 25, 3),
    Sketcher.Constraint("Coincident", 40, 3, 24, 3),
    Sketcher.Constraint("Coincident", 41, 3, 23, 3),
    Sketcher.Constraint("Coincident", 42, 3, 4, 3),
    Sketcher.Constraint("Coincident", 43, 3, 21, 3),
    Sketcher.Constraint("Coincident", 44, 3, 20, 3),
    Sketcher.Constraint("Coincident", 45, 3, 19, 3),
    Sketcher.Constraint("Coincident", 46, 3, 4, 3),
    Sketcher.Constraint("Coincident", 47, 3, 17, 3),
    Sketcher.Constraint("Coincident", 48, 3, 16, 3),
    Sketcher.Constraint("Coincident", 51, 3, 4, 3),
    Sketcher.Constraint("Equal", 1, 3),
    Sketcher.Constraint("Equal", 3, 5),
    Sketcher.Constraint("Equal", 2, 6),
    Sketcher.Constraint("Equal", 5, 7),
    Sketcher.Constraint("Equal", 4, 8),
    Sketcher.Constraint("Equal", 7, 9),
    Sketcher.Constraint("Equal", 6, 10),
    Sketcher.Constraint("Equal", 10, 16),
    Sketcher.Constraint("Equal", 9, 17),
    Sketcher.Constraint("Equal", 8, 18),
    Sketcher.Constraint("Equal", 17, 19),
    Sketcher.Constraint("Equal", 16, 20),
    Sketcher.Constraint("Equal", 19, 21),
    Sketcher.Constraint("Equal", 18, 22),
    Sketcher.Constraint("Equal", 21, 23),
    Sketcher.Constraint("Equal", 20, 24),
    Sketcher.Constraint("Equal", 23, 25),
    Sketcher.Constraint("Symmetric", 10, 3, 16, 3, -2),
    Sketcher.Constraint("Symmetric", 7, 3, 19, 3, -2),
    Sketcher.Constraint("Symmetric", 2, 3, 24, 3, -2),
    Sketcher.Constraint("Parallel", 11, 27),
    Sketcher.Constraint("Parallel", 15, 49),
    Sketcher.Constraint("Horizontal", 6, 3, 20, 3),
    Sketcher.Constraint("Horizontal", 11, 2, 14, 2),
    Sketcher.Constraint("Radius", 1, Q("8 mm")),
    Sketcher.Constraint("Radius", 2, Q("13 mm")),
    Sketcher.Constraint("Radius", 13, Q("43 mm")),
    Sketcher.Constraint("Radius", 28, Q("11 mm")),
    Sketcher.Constraint("Radius", 51, Q("45 mm")),
    Sketcher.Constraint("Radius", 4, Q("85.5 mm")),
    Sketcher.Constraint("DistanceY", 1, 3, -1, 1, Q("52 mm")),
    Sketcher.Constraint("DistanceY", -1, 1, 4, 3, Q("25 mm")),
    Sketcher.Constraint("DistanceY", 26, 1, 26, 2, Q("26.58 mm")),
    Sketcher.Constraint("DistanceY", 2, 3, -1, 1, Q("37.05 mm")),
    Sketcher.Constraint("DistanceY", -1, 1, 6, 3, Q("6.93 mm")),
    Sketcher.Constraint("DistanceY", -1, 1, 10, 3, Q("57.63 mm")),
    Sketcher.Constraint("DistanceX", 29, 1, -1, 1, Q("81.963998 mm")),
    Sketcher.Constraint("DistanceX", 33, 1, -1, 1, Q("75.985202 mm")),
    Sketcher.Constraint("DistanceX", 0, 2, 0, 1, Q("82.254978 mm")),
])
pocket1 = body.newObject("PartDesign::Pocket", "Pocket")
pocket1.Profile = sketch2
pocket1.Length = 26
pocket1.Reversed = True

# Sketch on YZ plane
sketch3 = body.newObject("Sketcher::SketchObject", "Sketch002")
sketch3.AttachmentSupport = (doc.getObject("YZ_Plane"), [""])
sketch3.MapMode = "FlatFace"
sketch3.AttachmentOffset = App.Placement(Vector(0, 0, 165), App.Rotation())
sketch3.addGeometry([
    Part.LineSegment(Vector(-48, 40, 0), Vector(10, 39, 0)),
    Part.LineSegment(Vector(10, 39, 0), Vector(69, 40, 0)),
    Part.LineSegment(Vector(69, 40, 0), Vector(-48, 40, 0)),
], False)
sketch3.addConstraint([
    Sketcher.Constraint("Coincident", 0, 2, 1, 1),
    Sketcher.Constraint("Coincident", 1, 2, 2, 1),
    Sketcher.Constraint("Coincident", 2, 2, 0, 1),
    Sketcher.Constraint("Horizontal", 2),
    Sketcher.Constraint("Equal", 0, 1),
    Sketcher.Constraint("DistanceY", -1, 1, 0, 2, Q("39 mm")),
    Sketcher.Constraint("DistanceY", -1, 1, 1, 2, Q("40 mm")),
    Sketcher.Constraint("DistanceX", 2, 2, 2, 1, Q("116.68 mm")),
    Sketcher.Constraint("DistanceX", -1, 1, 0, 2, Q("10.29 mm")),
])
pocket2 = body.newObject("PartDesign::Pocket", "Pocket001")
pocket2.Profile = sketch3
pocket2.Length = 376

doc.recompute()
